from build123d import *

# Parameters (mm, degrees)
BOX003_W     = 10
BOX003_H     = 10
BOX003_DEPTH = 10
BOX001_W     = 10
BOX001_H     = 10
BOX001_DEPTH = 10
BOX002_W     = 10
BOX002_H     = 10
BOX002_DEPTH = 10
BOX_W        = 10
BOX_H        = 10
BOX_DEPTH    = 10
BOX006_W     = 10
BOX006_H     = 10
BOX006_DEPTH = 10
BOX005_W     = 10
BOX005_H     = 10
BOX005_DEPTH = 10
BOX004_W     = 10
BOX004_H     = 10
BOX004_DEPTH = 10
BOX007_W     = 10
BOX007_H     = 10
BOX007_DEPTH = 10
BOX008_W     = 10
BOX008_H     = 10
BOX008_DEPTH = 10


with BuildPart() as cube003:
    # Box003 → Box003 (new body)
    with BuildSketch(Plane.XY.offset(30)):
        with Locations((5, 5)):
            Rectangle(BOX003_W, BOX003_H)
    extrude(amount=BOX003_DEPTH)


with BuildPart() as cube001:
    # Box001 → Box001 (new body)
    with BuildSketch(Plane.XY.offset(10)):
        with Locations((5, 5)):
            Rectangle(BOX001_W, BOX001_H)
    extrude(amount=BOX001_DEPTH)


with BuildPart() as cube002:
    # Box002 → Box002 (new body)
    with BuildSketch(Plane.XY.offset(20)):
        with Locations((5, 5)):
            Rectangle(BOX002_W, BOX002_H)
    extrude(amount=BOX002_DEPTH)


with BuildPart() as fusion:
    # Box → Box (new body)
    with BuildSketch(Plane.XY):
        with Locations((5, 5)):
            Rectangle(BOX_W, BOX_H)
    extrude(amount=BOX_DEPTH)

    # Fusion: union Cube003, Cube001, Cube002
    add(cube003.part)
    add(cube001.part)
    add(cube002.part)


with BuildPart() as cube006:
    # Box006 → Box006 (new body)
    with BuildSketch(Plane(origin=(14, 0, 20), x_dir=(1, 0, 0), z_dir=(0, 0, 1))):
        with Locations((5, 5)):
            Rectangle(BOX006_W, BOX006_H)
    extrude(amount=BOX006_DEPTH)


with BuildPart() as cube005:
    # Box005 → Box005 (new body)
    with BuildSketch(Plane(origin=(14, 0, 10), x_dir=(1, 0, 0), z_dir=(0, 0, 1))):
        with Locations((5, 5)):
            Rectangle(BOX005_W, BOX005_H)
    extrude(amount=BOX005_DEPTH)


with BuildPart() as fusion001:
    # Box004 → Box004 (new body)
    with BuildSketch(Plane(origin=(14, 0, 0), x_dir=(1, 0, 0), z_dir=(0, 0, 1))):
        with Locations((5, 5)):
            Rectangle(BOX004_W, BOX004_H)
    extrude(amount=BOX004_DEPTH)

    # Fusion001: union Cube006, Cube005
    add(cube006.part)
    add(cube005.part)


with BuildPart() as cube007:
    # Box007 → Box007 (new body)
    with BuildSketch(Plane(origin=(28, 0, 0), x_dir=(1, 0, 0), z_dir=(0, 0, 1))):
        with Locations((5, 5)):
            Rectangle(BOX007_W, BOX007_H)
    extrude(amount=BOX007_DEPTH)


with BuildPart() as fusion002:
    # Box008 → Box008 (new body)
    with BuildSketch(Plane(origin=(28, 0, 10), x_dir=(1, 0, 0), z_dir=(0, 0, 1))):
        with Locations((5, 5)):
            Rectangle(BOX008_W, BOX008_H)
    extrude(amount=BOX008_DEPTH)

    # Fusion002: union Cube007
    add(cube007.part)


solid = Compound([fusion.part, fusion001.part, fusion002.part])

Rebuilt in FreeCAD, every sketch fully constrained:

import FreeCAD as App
import Part
import Sketcher
Q = App.Units.Quantity


def add_polygon(sketch, points):
    """Adds a closed chain of lines whose ends are joined by coincident constraints."""
    first, n = sketch.GeometryCount, len(points)
    for a, b in zip(points, points[1:] + points[:1]):
        sketch.addGeometry(Part.LineSegment(App.Vector(*a, 0), App.Vector(*b, 0)), False)
    for i in range(n):
        sketch.addConstraint(Sketcher.Constraint("Coincident", first + i, 2, first + (i + 1) % n, 1))

doc = App.newDocument("Part")
body = doc.addObject("PartDesign::Body", "Body")

# Sketch on XY plane
sketch1 = body.newObject("Sketcher::SketchObject", "Sketch")
sketch1.AttachmentSupport = (doc.getObject("XY_Plane"), [""])
sketch1.MapMode = "FlatFace"
sketch1.AttachmentOffset = App.Placement(App.Vector(0, 0, 30), App.Rotation())
add_polygon(sketch1, [(0, 10), (0, 0), (10, 0), (10, 10)])  # lines 0-3
sketch1.addConstraint([
    Sketcher.Constraint("Vertical", 0),
    Sketcher.Constraint("Horizontal", 1),
    Sketcher.Constraint("Vertical", 2),
    Sketcher.Constraint("Horizontal", 3),
    Sketcher.Constraint("Coincident", 0, 2, -1, 1),
    Sketcher.Constraint("Equal", 3, 0),
    Sketcher.Constraint("DistanceX", 1, 1, 1, 2, Q("10 mm")),
])
pad1 = body.newObject("PartDesign::Pad", "Pad")
pad1.Profile = sketch1
pad1.Length = 10
body2 = doc.addObject("PartDesign::Body", "Body001")

# Sketch on XY plane
sketch2 = body2.newObject("Sketcher::SketchObject", "Sketch001")
sketch2.AttachmentSupport = (doc.getObject("XY_Plane001"), [""])
sketch2.MapMode = "FlatFace"
sketch2.AttachmentOffset = App.Placement(App.Vector(0, 0, 10), App.Rotation())
add_polygon(sketch2, [(0, 10), (0, 0), (10, 0), (10, 10)])  # lines 0-3
sketch2.addConstraint([
    Sketcher.Constraint("Vertical", 0),
    Sketcher.Constraint("Horizontal", 1),
    Sketcher.Constraint("Vertical", 2),
    Sketcher.Constraint("Horizontal", 3),
    Sketcher.Constraint("Coincident", 0, 2, -1, 1),
    Sketcher.Constraint("Equal", 3, 0),
    Sketcher.Constraint("DistanceX", 1, 1, 1, 2, Q("10 mm")),
])
pad2 = body2.newObject("PartDesign::Pad", "Pad001")
pad2.Profile = sketch2
pad2.Length = 10
body3 = doc.addObject("PartDesign::Body", "Body002")

# Sketch on XY plane
sketch3 = body3.newObject("Sketcher::SketchObject", "Sketch002")
sketch3.AttachmentSupport = (doc.getObject("XY_Plane002"), [""])
sketch3.MapMode = "FlatFace"
sketch3.AttachmentOffset = App.Placement(App.Vector(0, 0, 20), App.Rotation())
add_polygon(sketch3, [(0, 10), (0, 0), (10, 0), (10, 10)])  # lines 0-3
sketch3.addConstraint([
    Sketcher.Constraint("Vertical", 0),
    Sketcher.Constraint("Horizontal", 1),
    Sketcher.Constraint("Vertical", 2),
    Sketcher.Constraint("Horizontal", 3),
    Sketcher.Constraint("Coincident", 0, 2, -1, 1),
    Sketcher.Constraint("Equal", 3, 0),
    Sketcher.Constraint("DistanceX", 1, 1, 1, 2, Q("10 mm")),
])
pad3 = body3.newObject("PartDesign::Pad", "Pad002")
pad3.Profile = sketch3
pad3.Length = 10
body4 = doc.addObject("PartDesign::Body", "Body003")
body4.AllowCompound = True

# Sketch on XY plane
sketch4 = body4.newObject("Sketcher::SketchObject", "Sketch003")
sketch4.AttachmentSupport = (doc.getObject("XY_Plane003"), [""])
sketch4.MapMode = "FlatFace"
add_polygon(sketch4, [(0, 10), (0, 0), (10, 0), (10, 10)])  # lines 0-3
sketch4.addConstraint([
    Sketcher.Constraint("Vertical", 0),
    Sketcher.Constraint("Horizontal", 1),
    Sketcher.Constraint("Vertical", 2),
    Sketcher.Constraint("Horizontal", 3),
    Sketcher.Constraint("Coincident", 0, 2, -1, 1),
    Sketcher.Constraint("Equal", 3, 0),
    Sketcher.Constraint("DistanceX", 1, 1, 1, 2, Q("10 mm")),
])
pad4 = body4.newObject("PartDesign::Pad", "Pad003")
pad4.Profile = sketch4
pad4.Length = 10
doc.recompute()

boolean = body4.newObject("PartDesign::Boolean", "Boolean")
boolean.Type = "Fuse"
boolean.addObjects([body])
doc.recompute()

boolean2 = body4.newObject("PartDesign::Boolean", "Boolean001")
boolean2.Type = "Fuse"
boolean2.addObjects([body2])
doc.recompute()

boolean3 = body4.newObject("PartDesign::Boolean", "Boolean002")
boolean3.Type = "Fuse"
boolean3.addObjects([body3])
body5 = doc.addObject("PartDesign::Body", "Body004")

# Sketch on XY plane
sketch5 = body5.newObject("Sketcher::SketchObject", "Sketch004")
sketch5.AttachmentSupport = (doc.getObject("XY_Plane004"), [""])
sketch5.MapMode = "FlatFace"
sketch5.AttachmentOffset = App.Placement(App.Vector(0, 0, 20), App.Rotation())
add_polygon(sketch5, [(14, 10), (14, 0), (24, 0), (24, 10)])  # lines 0-3
sketch5.addConstraint([
    Sketcher.Constraint("Vertical", 0),
    Sketcher.Constraint("Horizontal", 1),
    Sketcher.Constraint("Vertical", 2),
    Sketcher.Constraint("Horizontal", 3),
    Sketcher.Constraint("PointOnObject", 0, 2, -1),
    Sketcher.Constraint("Equal", 3, 0),
    Sketcher.Constraint("DistanceX", 1, 1, 1, 2, Q("10 mm")),
    Sketcher.Constraint("DistanceX", -1, 1, 0, 2, Q("14 mm")),
])
pad5 = body5.newObject("PartDesign::Pad", "Pad004")
pad5.Profile = sketch5
pad5.Length = 10
body6 = doc.addObject("PartDesign::Body", "Body005")

# Sketch on XY plane
sketch6 = body6.newObject("Sketcher::SketchObject", "Sketch005")
sketch6.AttachmentSupport = (doc.getObject("XY_Plane005"), [""])
sketch6.MapMode = "FlatFace"
sketch6.AttachmentOffset = App.Placement(App.Vector(0, 0, 10), App.Rotation())
add_polygon(sketch6, [(14, 10), (14, 0), (24, 0), (24, 10)])  # lines 0-3
sketch6.addConstraint([
    Sketcher.Constraint("Vertical", 0),
    Sketcher.Constraint("Horizontal", 1),
    Sketcher.Constraint("Vertical", 2),
    Sketcher.Constraint("Horizontal", 3),
    Sketcher.Constraint("PointOnObject", 0, 2, -1),
    Sketcher.Constraint("Equal", 3, 0),
    Sketcher.Constraint("DistanceX", 1, 1, 1, 2, Q("10 mm")),
    Sketcher.Constraint("DistanceX", -1, 1, 0, 2, Q("14 mm")),
])
pad6 = body6.newObject("PartDesign::Pad", "Pad005")
pad6.Profile = sketch6
pad6.Length = 10
body7 = doc.addObject("PartDesign::Body", "Body006")
body7.AllowCompound = True

# Sketch on XY plane
sketch7 = body7.newObject("Sketcher::SketchObject", "Sketch006")
sketch7.AttachmentSupport = (doc.getObject("XY_Plane006"), [""])
sketch7.MapMode = "FlatFace"
add_polygon(sketch7, [(14, 10), (14, 0), (24, 0), (24, 10)])  # lines 0-3
sketch7.addConstraint([
    Sketcher.Constraint("Vertical", 0),
    Sketcher.Constraint("Horizontal", 1),
    Sketcher.Constraint("Vertical", 2),
    Sketcher.Constraint("Horizontal", 3),
    Sketcher.Constraint("PointOnObject", 0, 2, -1),
    Sketcher.Constraint("Equal", 3, 0),
    Sketcher.Constraint("DistanceX", 1, 1, 1, 2, Q("10 mm")),
    Sketcher.Constraint("DistanceX", -1, 1, 0, 2, Q("14 mm")),
])
pad7 = body7.newObject("PartDesign::Pad", "Pad006")
pad7.Profile = sketch7
pad7.Length = 10
doc.recompute()

boolean4 = body7.newObject("PartDesign::Boolean", "Boolean003")
boolean4.Type = "Fuse"
boolean4.addObjects([body5])
doc.recompute()

boolean5 = body7.newObject("PartDesign::Boolean", "Boolean004")
boolean5.Type = "Fuse"
boolean5.addObjects([body6])
body8 = doc.addObject("PartDesign::Body", "Body007")

# Sketch on XY plane
sketch8 = body8.newObject("Sketcher::SketchObject", "Sketch007")
sketch8.AttachmentSupport = (doc.getObject("XY_Plane007"), [""])
sketch8.MapMode = "FlatFace"
add_polygon(sketch8, [(28, 10), (28, 0), (38, 0), (38, 10)])  # lines 0-3
sketch8.addConstraint([
    Sketcher.Constraint("Vertical", 0),
    Sketcher.Constraint("Horizontal", 1),
    Sketcher.Constraint("Vertical", 2),
    Sketcher.Constraint("Horizontal", 3),
    Sketcher.Constraint("PointOnObject", 0, 2, -1),
    Sketcher.Constraint("Equal", 3, 0),
    Sketcher.Constraint("DistanceX", 1, 1, 1, 2, Q("10 mm")),
    Sketcher.Constraint("DistanceX", -1, 1, 0, 2, Q("28 mm")),
])
pad8 = body8.newObject("PartDesign::Pad", "Pad007")
pad8.Profile = sketch8
pad8.Length = 10
body9 = doc.addObject("PartDesign::Body", "Body008")

# Sketch on XY plane
sketch9 = body9.newObject("Sketcher::SketchObject", "Sketch008")
sketch9.AttachmentSupport = (doc.getObject("XY_Plane008"), [""])
sketch9.MapMode = "FlatFace"
sketch9.AttachmentOffset = App.Placement(App.Vector(0, 0, 10), App.Rotation())
add_polygon(sketch9, [(28, 10), (28, 0), (38, 0), (38, 10)])  # lines 0-3
sketch9.addConstraint([
    Sketcher.Constraint("Vertical", 0),
    Sketcher.Constraint("Horizontal", 1),
    Sketcher.Constraint("Vertical", 2),
    Sketcher.Constraint("Horizontal", 3),
    Sketcher.Constraint("PointOnObject", 0, 2, -1),
    Sketcher.Constraint("Equal", 3, 0),
    Sketcher.Constraint("DistanceX", 1, 1, 1, 2, Q("10 mm")),
    Sketcher.Constraint("DistanceX", -1, 1, 0, 2, Q("28 mm")),
])
pad9 = body9.newObject("PartDesign::Pad", "Pad008")
pad9.Profile = sketch9
pad9.Length = 10
doc.recompute()

boolean6 = body9.newObject("PartDesign::Boolean", "Boolean005")
boolean6.Type = "Fuse"
boolean6.addObjects([body8])

doc.recompute()
